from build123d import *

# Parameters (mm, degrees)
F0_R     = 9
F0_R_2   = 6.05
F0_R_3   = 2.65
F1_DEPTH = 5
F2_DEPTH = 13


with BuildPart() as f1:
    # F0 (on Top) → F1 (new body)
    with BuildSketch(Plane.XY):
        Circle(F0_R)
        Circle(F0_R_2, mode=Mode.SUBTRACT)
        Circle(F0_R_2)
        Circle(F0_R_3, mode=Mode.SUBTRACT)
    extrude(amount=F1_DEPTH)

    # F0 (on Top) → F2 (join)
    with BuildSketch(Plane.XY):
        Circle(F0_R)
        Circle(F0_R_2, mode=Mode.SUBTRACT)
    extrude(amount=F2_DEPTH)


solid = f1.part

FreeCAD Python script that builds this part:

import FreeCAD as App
import Part
import Sketcher

V = App.Vector
Q = App.Units.Quantity

doc = App.newDocument("Part")
body = doc.addObject("PartDesign::Body", "Body")

sketch1 = doc.addObject("Sketcher::SketchObject", "Sketch")
body.addObject(sketch1)
sketch1.AttachmentSupport = (doc.XY_Plane, [""])
sketch1.MapMode = "FlatFace"
sketch1.addGeometry(Part.Circle(V(0, 0, 0), V(0, 0, 1), 9), False)
sketch1.addGeometry(Part.Circle(V(0, 0, 0), V(0, 0, 1), 2.65), False)
sketch1.addConstraint(Sketcher.Constraint("Coincident", 0, 3, -1, 1))
sketch1.addConstraint(Sketcher.Constraint("Coincident", 1, 3, -1, 1))
sketch1.addConstraint(Sketcher.Constraint("Diameter", 0, Q("18 mm")))
sketch1.addConstraint(Sketcher.Constraint("Diameter", 1, Q("5.3 mm")))
pad1 = doc.addObject("PartDesign::Pad", "Pad")
body.addObject(pad1)
pad1.Profile = sketch1
pad1.Length = 5

sketch2 = doc.addObject("Sketcher::SketchObject", "Sketch001")
body.addObject(sketch2)
sketch2.AttachmentSupport = (doc.XY_Plane, [""])
sketch2.MapMode = "FlatFace"
sketch2.addGeometry(Part.Circle(V(0, 0, 0), V(0, 0, 1), 9), False)
sketch2.addGeometry(Part.Circle(V(0, 0, 0), V(0, 0, 1), 6.05), False)
sketch2.addConstraint(Sketcher.Constraint("Coincident", 0, 3, -1, 1))
sketch2.addConstraint(Sketcher.Constraint("Coincident", 1, 3, -1, 1))
sketch2.addConstraint(Sketcher.Constraint("Diameter", 0, Q("18 mm")))
sketch2.addConstraint(Sketcher.Constraint("Diameter", 1, Q("12.1 mm")))
pad2 = doc.addObject("PartDesign::Pad", "Pad001")
body.addObject(pad2)
pad2.Profile = sketch2
pad2.Length = 13

doc.recompute()
